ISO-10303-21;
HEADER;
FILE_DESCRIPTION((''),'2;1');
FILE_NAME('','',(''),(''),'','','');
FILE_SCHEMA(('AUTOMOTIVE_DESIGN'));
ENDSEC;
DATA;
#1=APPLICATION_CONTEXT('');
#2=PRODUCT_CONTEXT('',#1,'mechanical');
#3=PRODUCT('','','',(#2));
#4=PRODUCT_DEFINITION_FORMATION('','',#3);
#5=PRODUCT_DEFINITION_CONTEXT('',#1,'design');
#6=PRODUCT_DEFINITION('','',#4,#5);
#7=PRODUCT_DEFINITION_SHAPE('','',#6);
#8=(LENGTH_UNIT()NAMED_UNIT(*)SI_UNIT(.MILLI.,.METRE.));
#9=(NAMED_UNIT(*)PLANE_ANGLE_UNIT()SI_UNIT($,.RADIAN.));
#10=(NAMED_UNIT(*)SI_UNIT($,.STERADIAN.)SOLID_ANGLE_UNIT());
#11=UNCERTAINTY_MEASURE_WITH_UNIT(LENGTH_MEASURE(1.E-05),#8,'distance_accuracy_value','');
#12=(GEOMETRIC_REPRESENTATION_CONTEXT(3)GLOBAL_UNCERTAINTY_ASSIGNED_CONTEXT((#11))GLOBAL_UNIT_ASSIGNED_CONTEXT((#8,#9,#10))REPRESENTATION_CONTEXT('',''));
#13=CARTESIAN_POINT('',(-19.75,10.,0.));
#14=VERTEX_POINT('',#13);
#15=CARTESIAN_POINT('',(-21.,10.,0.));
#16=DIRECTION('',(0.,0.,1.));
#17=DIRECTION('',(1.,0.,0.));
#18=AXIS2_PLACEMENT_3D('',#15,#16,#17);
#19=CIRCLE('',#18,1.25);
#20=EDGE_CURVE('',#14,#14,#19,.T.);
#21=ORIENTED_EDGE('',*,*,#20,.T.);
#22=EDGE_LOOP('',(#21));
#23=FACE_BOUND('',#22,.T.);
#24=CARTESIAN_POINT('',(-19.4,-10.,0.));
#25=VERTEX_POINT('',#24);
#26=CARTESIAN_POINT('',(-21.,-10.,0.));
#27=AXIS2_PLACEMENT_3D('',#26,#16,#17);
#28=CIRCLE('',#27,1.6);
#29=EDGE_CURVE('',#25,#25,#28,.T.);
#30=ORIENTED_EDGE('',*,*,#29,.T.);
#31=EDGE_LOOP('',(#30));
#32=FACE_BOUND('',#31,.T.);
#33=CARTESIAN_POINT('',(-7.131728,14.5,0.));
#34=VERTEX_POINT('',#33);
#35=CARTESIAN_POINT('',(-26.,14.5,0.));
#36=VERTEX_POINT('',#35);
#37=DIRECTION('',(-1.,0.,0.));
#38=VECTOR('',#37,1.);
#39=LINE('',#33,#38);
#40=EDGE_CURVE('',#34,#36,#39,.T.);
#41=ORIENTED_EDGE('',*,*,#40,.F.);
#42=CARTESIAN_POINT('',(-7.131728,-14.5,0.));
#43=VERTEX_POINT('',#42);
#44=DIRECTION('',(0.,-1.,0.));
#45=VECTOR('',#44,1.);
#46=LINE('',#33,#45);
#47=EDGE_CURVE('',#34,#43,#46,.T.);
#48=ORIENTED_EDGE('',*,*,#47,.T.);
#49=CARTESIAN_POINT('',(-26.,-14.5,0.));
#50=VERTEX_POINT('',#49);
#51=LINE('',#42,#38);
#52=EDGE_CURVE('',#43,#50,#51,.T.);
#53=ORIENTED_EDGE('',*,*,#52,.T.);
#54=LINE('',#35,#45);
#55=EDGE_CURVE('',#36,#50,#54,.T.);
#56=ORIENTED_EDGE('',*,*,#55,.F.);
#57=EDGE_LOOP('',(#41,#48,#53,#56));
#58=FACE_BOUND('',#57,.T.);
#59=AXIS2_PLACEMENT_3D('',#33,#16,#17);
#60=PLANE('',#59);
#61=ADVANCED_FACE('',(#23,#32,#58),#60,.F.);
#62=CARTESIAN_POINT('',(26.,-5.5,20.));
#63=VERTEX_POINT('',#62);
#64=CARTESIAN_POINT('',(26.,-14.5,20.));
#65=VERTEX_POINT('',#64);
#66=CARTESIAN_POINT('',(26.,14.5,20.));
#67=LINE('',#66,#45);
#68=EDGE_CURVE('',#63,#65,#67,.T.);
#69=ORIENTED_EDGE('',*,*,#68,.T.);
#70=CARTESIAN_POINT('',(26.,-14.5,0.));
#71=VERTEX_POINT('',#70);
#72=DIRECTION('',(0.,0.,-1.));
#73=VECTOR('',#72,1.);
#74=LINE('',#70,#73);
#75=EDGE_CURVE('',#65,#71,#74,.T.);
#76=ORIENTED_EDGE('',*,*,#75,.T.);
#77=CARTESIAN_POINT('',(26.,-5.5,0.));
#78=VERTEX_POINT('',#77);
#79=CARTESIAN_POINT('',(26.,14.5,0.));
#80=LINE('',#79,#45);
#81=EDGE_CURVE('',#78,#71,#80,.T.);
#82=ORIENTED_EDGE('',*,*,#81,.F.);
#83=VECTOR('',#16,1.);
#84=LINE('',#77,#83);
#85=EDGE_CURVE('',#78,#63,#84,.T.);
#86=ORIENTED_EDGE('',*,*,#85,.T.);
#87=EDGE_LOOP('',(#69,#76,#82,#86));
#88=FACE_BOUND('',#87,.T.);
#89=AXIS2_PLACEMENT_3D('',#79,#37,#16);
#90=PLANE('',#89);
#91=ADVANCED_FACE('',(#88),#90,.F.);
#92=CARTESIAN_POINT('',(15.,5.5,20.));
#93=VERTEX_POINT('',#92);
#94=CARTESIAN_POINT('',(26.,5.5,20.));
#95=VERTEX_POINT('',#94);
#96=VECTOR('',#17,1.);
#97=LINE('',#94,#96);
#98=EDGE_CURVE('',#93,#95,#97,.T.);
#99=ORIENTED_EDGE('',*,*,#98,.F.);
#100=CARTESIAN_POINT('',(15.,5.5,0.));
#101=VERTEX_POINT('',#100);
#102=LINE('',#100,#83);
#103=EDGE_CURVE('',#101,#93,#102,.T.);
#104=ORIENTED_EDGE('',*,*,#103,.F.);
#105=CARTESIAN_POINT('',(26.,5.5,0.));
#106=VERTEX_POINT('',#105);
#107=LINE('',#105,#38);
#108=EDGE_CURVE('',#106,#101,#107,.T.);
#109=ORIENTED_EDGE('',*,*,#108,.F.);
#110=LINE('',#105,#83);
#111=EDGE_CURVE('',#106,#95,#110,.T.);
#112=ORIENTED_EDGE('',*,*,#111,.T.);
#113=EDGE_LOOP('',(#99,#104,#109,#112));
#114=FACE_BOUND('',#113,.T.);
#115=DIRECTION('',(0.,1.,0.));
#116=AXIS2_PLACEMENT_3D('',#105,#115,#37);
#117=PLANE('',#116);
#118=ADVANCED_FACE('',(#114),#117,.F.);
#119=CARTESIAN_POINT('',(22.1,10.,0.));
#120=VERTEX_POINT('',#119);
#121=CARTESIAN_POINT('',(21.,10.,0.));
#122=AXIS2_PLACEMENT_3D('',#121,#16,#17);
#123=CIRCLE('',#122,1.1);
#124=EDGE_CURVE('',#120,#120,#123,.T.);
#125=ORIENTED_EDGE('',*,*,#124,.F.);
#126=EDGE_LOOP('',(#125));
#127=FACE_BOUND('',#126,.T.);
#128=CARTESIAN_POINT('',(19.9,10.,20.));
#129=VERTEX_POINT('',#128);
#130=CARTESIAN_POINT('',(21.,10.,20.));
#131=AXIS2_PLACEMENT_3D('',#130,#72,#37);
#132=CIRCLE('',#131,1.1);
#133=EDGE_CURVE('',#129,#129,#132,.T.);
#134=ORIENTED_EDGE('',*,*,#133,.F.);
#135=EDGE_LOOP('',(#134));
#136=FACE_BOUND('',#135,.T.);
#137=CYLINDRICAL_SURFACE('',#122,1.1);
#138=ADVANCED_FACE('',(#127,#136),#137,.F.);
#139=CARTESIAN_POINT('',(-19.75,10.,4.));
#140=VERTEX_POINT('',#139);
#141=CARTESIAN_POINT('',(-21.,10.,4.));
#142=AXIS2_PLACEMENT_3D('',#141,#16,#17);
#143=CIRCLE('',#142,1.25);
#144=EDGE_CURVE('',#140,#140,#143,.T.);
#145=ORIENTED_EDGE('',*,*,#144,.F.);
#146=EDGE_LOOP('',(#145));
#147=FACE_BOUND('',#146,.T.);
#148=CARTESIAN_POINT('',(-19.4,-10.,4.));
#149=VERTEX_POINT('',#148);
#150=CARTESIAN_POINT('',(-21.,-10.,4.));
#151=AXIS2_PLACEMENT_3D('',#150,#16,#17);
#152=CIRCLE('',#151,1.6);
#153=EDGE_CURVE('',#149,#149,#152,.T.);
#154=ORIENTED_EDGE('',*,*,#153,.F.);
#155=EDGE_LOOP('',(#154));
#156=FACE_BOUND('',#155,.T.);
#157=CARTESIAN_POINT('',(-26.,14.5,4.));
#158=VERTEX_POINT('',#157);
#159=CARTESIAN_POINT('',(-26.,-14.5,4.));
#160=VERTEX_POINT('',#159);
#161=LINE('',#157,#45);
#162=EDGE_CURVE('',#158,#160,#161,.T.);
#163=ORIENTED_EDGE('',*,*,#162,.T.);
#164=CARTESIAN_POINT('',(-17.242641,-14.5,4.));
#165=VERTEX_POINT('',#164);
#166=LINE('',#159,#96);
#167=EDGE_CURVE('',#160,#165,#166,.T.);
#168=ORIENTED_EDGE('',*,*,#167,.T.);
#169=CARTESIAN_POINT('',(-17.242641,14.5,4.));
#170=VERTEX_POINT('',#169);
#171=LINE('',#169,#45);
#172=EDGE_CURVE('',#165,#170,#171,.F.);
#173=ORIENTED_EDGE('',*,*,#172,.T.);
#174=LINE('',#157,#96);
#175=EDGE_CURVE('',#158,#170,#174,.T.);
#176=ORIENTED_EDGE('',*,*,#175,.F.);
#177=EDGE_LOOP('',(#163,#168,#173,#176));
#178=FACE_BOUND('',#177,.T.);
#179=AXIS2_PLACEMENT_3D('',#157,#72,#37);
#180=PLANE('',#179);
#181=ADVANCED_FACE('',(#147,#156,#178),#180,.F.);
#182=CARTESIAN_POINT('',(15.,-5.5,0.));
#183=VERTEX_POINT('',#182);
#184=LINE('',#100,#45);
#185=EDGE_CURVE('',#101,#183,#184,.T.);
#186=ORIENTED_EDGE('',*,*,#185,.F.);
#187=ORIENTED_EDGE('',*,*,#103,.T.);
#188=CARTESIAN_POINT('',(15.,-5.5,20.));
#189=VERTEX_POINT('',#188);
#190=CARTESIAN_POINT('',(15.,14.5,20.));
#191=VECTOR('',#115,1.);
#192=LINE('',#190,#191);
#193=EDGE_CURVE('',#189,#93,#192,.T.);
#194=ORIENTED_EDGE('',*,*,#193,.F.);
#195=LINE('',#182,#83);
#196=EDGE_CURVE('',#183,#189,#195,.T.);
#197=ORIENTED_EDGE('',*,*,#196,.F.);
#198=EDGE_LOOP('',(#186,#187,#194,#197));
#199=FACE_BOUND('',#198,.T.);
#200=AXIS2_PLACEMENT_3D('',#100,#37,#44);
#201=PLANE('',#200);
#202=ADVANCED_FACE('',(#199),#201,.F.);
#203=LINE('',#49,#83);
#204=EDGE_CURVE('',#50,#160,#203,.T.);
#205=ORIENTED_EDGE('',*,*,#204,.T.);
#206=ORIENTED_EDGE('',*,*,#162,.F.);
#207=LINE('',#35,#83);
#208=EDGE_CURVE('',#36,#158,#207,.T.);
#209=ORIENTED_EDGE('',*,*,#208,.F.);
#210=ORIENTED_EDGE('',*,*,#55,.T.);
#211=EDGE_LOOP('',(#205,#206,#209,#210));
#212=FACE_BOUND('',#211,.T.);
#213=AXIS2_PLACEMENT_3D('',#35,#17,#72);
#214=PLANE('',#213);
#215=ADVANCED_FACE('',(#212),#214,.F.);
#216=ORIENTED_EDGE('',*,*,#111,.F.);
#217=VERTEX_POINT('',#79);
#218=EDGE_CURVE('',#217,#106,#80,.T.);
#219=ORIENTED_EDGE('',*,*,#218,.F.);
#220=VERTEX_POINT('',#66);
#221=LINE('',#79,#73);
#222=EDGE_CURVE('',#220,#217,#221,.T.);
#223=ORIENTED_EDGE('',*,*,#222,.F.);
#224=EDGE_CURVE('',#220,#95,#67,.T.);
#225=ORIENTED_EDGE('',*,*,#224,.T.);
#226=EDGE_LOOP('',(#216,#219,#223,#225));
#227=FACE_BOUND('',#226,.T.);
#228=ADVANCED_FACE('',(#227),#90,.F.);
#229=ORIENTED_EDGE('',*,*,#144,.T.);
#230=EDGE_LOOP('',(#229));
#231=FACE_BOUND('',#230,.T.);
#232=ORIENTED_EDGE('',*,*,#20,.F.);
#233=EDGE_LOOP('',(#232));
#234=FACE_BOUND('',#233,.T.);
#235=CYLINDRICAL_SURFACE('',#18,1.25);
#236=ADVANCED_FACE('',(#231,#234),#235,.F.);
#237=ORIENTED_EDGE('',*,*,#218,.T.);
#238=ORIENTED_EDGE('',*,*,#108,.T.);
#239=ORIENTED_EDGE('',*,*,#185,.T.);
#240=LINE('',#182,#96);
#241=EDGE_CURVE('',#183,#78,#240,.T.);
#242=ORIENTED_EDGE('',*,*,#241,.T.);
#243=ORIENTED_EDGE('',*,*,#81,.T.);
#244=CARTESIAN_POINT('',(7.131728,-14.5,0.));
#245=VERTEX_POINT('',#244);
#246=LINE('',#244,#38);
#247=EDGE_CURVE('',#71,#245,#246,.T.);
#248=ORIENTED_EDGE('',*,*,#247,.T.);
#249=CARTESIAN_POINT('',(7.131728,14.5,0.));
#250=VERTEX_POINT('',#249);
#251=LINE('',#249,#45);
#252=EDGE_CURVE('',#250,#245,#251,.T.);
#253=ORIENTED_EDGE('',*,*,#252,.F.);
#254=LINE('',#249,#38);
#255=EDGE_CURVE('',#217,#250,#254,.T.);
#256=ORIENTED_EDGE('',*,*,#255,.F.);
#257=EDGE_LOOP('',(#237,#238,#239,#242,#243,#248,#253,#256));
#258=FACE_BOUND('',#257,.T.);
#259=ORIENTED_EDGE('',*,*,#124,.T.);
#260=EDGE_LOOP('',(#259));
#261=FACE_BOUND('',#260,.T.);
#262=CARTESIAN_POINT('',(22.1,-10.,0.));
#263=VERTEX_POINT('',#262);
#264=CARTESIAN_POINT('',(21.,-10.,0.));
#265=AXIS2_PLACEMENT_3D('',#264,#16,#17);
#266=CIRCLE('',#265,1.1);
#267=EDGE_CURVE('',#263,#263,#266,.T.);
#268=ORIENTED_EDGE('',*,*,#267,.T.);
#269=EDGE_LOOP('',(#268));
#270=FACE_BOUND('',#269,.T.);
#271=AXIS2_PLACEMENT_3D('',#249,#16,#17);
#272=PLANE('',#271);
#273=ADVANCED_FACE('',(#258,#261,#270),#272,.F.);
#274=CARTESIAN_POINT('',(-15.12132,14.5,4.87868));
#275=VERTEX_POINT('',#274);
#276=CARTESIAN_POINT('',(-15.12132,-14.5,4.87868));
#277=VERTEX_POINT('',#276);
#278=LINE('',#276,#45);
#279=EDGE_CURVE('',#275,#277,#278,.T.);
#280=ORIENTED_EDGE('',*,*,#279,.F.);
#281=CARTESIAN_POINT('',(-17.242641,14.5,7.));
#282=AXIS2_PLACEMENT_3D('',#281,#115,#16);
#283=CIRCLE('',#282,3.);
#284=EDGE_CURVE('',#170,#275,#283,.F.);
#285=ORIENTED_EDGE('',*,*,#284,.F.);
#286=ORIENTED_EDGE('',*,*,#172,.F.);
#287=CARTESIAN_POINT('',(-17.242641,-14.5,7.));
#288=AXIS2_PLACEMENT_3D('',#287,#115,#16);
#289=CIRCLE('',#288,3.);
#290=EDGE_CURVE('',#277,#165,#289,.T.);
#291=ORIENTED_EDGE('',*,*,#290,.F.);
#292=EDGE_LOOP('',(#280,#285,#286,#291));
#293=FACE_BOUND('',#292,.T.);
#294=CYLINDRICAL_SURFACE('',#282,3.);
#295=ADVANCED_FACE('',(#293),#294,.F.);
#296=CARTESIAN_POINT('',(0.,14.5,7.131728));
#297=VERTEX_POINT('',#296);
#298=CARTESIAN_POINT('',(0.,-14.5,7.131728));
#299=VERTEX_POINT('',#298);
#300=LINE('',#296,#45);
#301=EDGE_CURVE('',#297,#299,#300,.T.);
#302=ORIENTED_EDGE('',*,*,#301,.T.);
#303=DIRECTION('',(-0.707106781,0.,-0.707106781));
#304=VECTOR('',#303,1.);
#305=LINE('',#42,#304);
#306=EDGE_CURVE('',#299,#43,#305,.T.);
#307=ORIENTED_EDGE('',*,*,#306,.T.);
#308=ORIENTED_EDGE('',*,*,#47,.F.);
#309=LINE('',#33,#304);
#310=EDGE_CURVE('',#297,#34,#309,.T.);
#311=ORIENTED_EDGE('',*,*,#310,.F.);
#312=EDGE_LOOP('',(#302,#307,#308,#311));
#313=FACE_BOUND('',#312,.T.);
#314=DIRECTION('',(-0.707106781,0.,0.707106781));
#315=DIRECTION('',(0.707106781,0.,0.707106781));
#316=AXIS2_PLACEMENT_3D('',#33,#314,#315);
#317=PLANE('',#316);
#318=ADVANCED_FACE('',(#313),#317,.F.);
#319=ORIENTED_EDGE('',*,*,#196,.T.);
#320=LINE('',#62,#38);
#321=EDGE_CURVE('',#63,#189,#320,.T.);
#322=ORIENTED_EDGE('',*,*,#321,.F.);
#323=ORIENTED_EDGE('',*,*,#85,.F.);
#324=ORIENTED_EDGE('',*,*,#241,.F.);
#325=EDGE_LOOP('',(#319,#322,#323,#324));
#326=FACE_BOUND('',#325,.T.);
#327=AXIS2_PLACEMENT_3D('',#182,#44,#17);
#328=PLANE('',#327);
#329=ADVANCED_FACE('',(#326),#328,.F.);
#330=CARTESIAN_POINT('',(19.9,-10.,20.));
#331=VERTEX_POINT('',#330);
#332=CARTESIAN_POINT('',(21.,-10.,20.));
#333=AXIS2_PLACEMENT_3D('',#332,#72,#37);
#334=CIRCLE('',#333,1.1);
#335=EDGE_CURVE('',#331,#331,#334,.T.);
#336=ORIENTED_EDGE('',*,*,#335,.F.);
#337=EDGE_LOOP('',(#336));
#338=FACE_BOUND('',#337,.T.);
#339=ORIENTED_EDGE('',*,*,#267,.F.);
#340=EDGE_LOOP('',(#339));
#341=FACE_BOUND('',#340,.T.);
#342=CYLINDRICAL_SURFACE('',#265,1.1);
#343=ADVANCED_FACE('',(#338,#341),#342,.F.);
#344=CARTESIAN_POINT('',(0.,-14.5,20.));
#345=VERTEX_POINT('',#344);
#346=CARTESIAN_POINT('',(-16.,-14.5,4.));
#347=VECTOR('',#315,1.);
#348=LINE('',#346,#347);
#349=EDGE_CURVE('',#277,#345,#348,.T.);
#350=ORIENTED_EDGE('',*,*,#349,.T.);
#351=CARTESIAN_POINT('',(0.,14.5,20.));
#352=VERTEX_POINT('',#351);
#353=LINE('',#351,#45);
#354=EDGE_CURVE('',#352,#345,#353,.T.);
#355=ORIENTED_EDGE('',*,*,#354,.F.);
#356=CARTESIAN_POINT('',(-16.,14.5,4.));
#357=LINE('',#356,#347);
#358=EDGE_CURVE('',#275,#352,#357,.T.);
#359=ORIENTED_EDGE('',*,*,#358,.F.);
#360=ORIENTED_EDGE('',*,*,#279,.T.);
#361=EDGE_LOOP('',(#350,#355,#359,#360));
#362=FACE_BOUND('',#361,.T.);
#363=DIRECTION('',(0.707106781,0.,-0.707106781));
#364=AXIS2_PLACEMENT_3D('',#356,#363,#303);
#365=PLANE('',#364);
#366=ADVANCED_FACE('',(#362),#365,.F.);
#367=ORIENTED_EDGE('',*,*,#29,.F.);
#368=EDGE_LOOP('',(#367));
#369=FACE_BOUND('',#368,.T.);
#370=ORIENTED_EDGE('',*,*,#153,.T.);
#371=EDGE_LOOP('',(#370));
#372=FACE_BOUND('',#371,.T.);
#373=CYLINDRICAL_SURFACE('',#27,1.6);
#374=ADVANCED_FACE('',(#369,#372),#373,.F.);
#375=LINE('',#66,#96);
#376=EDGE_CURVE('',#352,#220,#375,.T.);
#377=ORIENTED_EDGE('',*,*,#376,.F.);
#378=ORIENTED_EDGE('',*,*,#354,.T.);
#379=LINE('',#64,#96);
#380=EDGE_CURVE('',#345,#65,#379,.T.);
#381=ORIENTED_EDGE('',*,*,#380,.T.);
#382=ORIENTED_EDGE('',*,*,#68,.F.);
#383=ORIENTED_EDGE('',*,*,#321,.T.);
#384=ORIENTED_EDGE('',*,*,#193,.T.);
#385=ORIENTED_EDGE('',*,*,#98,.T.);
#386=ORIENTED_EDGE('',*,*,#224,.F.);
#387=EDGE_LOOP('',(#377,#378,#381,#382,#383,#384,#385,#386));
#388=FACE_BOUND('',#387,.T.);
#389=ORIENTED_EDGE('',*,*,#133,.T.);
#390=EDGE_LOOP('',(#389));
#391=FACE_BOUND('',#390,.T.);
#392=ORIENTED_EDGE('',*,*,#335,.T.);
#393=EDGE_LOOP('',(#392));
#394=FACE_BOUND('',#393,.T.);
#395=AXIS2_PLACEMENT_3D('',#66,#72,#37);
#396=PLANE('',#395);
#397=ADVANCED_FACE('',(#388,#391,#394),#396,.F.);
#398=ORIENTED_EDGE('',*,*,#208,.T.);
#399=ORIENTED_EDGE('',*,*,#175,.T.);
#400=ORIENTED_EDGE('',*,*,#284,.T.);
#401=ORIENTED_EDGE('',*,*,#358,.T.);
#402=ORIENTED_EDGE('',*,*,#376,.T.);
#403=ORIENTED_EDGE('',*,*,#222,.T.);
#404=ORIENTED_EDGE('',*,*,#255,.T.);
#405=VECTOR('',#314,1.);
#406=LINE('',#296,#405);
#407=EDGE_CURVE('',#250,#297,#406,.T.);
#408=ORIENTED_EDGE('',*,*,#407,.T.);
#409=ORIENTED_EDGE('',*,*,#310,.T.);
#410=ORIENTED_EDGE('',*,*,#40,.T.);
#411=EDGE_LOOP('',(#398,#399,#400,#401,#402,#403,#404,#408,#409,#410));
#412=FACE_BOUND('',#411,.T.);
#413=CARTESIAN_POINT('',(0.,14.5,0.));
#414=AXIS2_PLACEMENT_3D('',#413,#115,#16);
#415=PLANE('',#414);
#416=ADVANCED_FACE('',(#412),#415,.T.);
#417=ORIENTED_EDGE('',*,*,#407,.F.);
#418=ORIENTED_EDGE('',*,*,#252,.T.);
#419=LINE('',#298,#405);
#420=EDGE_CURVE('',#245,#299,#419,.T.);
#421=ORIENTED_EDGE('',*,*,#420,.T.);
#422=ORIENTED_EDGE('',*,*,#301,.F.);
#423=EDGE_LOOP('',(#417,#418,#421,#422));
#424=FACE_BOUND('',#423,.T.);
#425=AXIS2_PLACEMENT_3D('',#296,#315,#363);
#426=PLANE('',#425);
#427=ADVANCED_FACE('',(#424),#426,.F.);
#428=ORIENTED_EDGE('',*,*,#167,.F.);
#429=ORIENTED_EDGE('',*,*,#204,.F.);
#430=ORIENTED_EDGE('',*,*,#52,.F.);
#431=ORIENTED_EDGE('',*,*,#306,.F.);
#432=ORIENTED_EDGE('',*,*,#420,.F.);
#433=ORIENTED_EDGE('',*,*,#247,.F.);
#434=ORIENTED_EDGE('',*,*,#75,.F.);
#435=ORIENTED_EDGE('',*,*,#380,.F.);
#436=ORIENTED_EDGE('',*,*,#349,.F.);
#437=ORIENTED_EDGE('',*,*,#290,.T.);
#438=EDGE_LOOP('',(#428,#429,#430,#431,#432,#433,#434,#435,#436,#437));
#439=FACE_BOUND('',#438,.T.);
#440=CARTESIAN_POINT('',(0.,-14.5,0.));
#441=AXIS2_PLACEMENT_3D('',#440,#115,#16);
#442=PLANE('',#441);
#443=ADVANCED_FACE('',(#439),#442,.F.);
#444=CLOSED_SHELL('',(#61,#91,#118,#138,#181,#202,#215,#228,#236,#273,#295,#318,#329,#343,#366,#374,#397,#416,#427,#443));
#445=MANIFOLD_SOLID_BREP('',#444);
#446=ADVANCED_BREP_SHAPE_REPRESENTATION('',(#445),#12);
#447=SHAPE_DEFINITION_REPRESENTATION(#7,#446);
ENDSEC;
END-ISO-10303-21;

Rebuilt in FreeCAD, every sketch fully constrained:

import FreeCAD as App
import Part
import Sketcher
from FreeCAD import Vector


def edges_at(feature, points):
    """Names of the edges that pass closest to the given points."""
    edges = feature.Shape.Edges
    near = lambda p: min(range(len(edges)), key=lambda i: edges[i].distToShape(Part.Vertex(*p))[0])
    return sorted({f"Edge{near(p) + 1}" for p in points})

doc = App.newDocument("Part")
body = doc.addObject("PartDesign::Body", "Body")

# Sketch on XZ plane
sketch1 = doc.addObject("Sketcher::SketchObject", "Sketch")
body.addObject(sketch1)
sketch1.AttachmentSupport = (doc.XZ_Plane, [""])
sketch1.MapMode = "FlatFace"
sketch1.addGeometry([
    Part.LineSegment(Vector(-7.1, 0, 0), Vector(-26, 0, 0)),  # 0
    Part.LineSegment(Vector(-26, 0, 0), Vector(-26, 4, 0)),  # 1
    Part.LineSegment(Vector(-26, 4, 0), Vector(-16, 4, 0)),  # 2
    Part.LineSegment(Vector(-16, 4, 0), Vector(0, 20, 0)),  # 3
    Part.LineSegment(Vector(0, 20, 0), Vector(26, 20, 0)),  # 4
    Part.LineSegment(Vector(26, 20, 0), Vector(26, 0, 0)),  # 5
    Part.LineSegment(Vector(26, 0, 0), Vector(7.1, 0, 0)),  # 6
    Part.LineSegment(Vector(7.1, 0, 0), Vector(0, 7.1, 0)),  # 7
    Part.LineSegment(Vector(0, 7.1, 0), Vector(-7.1, 0, 0)),  # 8
], False)
sketch1.addConstraint([
    Sketcher.Constraint("Coincident", 0, 2, 1, 1),
    Sketcher.Constraint("Coincident", 1, 2, 2, 1),
    Sketcher.Constraint("Coincident", 2, 2, 3, 1),
    Sketcher.Constraint("Coincident", 3, 2, 4, 1),
    Sketcher.Constraint("Coincident", 4, 2, 5, 1),
    Sketcher.Constraint("Coincident", 5, 2, 6, 1),
    Sketcher.Constraint("Coincident", 6, 2, 7, 1),
    Sketcher.Constraint("Coincident", 7, 2, 8, 1),
    Sketcher.Constraint("Coincident", 8, 2, 0, 1),
    Sketcher.Constraint("Horizontal", 0),
    Sketcher.Constraint("Vertical", 1),
    Sketcher.Constraint("Horizontal", 2),
    Sketcher.Constraint("Horizontal", 4),
    Sketcher.Constraint("Vertical", 5),
    Sketcher.Constraint("Horizontal", 6),
    Sketcher.Constraint("Symmetric", 0, 2, 5, 2, -1, 1),
    Sketcher.Constraint("Symmetric", 6, 2, 8, 2, -2),
    Sketcher.Constraint("PointOnObject", 3, 2, -2),
    Sketcher.Constraint("PointOnObject", 7, 2, -2),
    Sketcher.Constraint("Perpendicular", 3, 7),
    Sketcher.Constraint("Perpendicular", 7, 8),
    Sketcher.Constraint("DistanceX", 2, 1, 2, 2, 10.0),
    Sketcher.Constraint("DistanceX", 4, 1, 4, 2, 26.0),
    Sketcher.Constraint("DistanceY", 1, 1, 1, 2, 4.0),
    Sketcher.Constraint("DistanceX", 0, 2, 0, 1, 18.868272),
])
pad1 = doc.addObject("PartDesign::Pad", "Pad")
body.addObject(pad1)
pad1.Profile = sketch1
pad1.Length = 29
pad1.Midplane = True

# Sketch on XY plane
sketch2 = doc.addObject("Sketcher::SketchObject", "Sketch001")
body.addObject(sketch2)
sketch2.AttachmentSupport = (doc.XY_Plane, [""])
sketch2.MapMode = "FlatFace"
sketch2.AttachmentOffset = App.Placement(Vector(0, 0, 20), App.Rotation())
sketch2.addGeometry([
    Part.Circle(Vector(21, 10, 0), Vector(0, 0, 1), 1.1),  # 0
    Part.Circle(Vector(21, -10, 0), Vector(0, 0, 1), 1.1),  # 1
    Part.LineSegment(Vector(15, 5.5, 0), Vector(15, -5.5, 0)),  # 2
    Part.LineSegment(Vector(15, -5.5, 0), Vector(26, -5.5, 0)),  # 3
    Part.LineSegment(Vector(26, -5.5, 0), Vector(26, 5.5, 0)),  # 4
    Part.LineSegment(Vector(26, 5.5, 0), Vector(15, 5.5, 0)),  # 5
], False)
sketch2.addConstraint([
    Sketcher.Constraint("Coincident", 2, 2, 3, 1),
    Sketcher.Constraint("Coincident", 3, 2, 4, 1),
    Sketcher.Constraint("Coincident", 4, 2, 5, 1),
    Sketcher.Constraint("Coincident", 5, 2, 2, 1),
    Sketcher.Constraint("Vertical", 2),
    Sketcher.Constraint("Horizontal", 3),
    Sketcher.Constraint("Vertical", 4),
    Sketcher.Constraint("Horizontal", 5),
    Sketcher.Constraint("Equal", 0, 1),
    Sketcher.Constraint("Symmetric", 0, 3, 1, 3, -1),
    Sketcher.Constraint("Equal", 5, 2),
    Sketcher.Constraint("Diameter", 0, 2.2),
    Sketcher.Constraint("DistanceX", 3, 1, 3, 2, 11.0),
    Sketcher.Constraint("DistanceX", -1, 1, 0, 3, 21.0),
    Sketcher.Constraint("DistanceY", -1, 1, 0, 3, 10.0),
    Sketcher.Constraint("DistanceX", -1, 1, 2, 2, 15.0),
    Sketcher.Constraint("DistanceY", 2, 2, -1, 1, 5.5),
])
pocket1 = doc.addObject("PartDesign::Pocket", "Pocket")
body.addObject(pocket1)
pocket1.Profile = sketch2
pocket1.Type = "ThroughAll"
pocket1.Midplane = True

# Sketch on XY plane
sketch3 = doc.addObject("Sketcher::SketchObject", "Sketch002")
body.addObject(sketch3)
sketch3.AttachmentSupport = (doc.XY_Plane, [""])
sketch3.MapMode = "FlatFace"
sketch3.AttachmentOffset = App.Placement(Vector(0, 0, 4), App.Rotation())
sketch3.addGeometry([
    Part.Circle(Vector(-21, 10, 0), Vector(0, 0, 1), 1.2),
    Part.Circle(Vector(-21, -10, 0), Vector(0, 0, 1), 1.6),
], False)
sketch3.addConstraint([
    Sketcher.Constraint("Symmetric", 0, 3, 1, 3, -1),
    Sketcher.Constraint("Diameter", 0, 2.5),
    Sketcher.Constraint("Diameter", 1, 3.2),
    Sketcher.Constraint("DistanceX", 0, 3, -1, 1, 21.0),
    Sketcher.Constraint("DistanceY", -1, 1, 0, 3, 10.0),
])
pocket2 = doc.addObject("PartDesign::Pocket", "Pocket001")
body.addObject(pocket2)
pocket2.Profile = sketch3
pocket2.Type = "ThroughAll"
doc.recompute()

fillet = doc.addObject("PartDesign::Fillet", "Fillet")
body.addObject(fillet)
fillet.Base = (pocket2, edges_at(pocket2, [(-16, 0, 4)]))
fillet.Radius = 3

doc.recompute()
